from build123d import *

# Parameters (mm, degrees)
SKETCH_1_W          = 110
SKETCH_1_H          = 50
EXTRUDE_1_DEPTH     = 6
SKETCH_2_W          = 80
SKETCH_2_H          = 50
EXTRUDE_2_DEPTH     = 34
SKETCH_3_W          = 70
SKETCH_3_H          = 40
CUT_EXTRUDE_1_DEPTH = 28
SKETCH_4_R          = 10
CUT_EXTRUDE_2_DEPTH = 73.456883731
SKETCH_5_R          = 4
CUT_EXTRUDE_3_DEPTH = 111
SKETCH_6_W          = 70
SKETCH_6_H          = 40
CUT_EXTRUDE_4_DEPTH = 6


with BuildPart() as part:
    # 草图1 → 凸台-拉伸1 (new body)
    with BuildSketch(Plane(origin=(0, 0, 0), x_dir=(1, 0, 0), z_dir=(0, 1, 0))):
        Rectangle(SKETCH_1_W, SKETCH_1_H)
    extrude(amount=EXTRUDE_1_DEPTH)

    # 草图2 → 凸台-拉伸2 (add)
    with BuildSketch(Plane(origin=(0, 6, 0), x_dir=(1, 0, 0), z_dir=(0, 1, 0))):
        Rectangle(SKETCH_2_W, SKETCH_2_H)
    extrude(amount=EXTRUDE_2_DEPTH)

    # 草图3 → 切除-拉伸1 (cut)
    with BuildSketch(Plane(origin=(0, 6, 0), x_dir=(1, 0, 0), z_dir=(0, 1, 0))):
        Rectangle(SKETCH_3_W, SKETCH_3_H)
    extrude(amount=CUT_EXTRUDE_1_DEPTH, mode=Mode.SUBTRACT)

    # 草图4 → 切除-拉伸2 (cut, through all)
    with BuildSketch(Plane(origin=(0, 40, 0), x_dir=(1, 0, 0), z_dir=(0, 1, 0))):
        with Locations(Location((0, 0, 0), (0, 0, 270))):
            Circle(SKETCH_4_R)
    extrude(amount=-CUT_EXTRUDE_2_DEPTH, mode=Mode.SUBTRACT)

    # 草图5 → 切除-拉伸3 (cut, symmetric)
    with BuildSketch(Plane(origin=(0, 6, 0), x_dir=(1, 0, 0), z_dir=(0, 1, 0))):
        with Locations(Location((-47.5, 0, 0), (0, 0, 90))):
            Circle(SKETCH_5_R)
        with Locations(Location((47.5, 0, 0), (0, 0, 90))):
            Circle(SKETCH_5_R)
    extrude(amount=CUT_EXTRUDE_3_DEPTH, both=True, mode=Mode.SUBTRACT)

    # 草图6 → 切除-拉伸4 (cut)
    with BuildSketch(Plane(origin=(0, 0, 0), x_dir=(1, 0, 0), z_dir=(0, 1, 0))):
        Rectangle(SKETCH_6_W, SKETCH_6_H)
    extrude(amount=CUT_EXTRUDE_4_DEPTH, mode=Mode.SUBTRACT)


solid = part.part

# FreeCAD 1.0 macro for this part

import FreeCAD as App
import Part
import Sketcher

doc = App.newDocument("Part")
body = doc.addObject("PartDesign::Body", "Body")

sketch1 = body.newObject("Sketcher::SketchObject", "Sketch")
sketch1.AttachmentSupport = (doc.getObject("XZ_Plane"), [""])
sketch1.MapMode = "FlatFace"
sketch1.addGeometry(Part.LineSegment(App.Vector(-55, -25, 0), App.Vector(-55, 25, 0)), False)
sketch1.addGeometry(Part.LineSegment(App.Vector(-55, 25, 0), App.Vector(55, 25, 0)), False)
sketch1.addGeometry(Part.LineSegment(App.Vector(55, 25, 0), App.Vector(55, -25, 0)), False)
sketch1.addGeometry(Part.LineSegment(App.Vector(55, -25, 0), App.Vector(-55, -25, 0)), False)
sketch1.addConstraint(Sketcher.Constraint("Coincident", 0, 2, 1, 1))
sketch1.addConstraint(Sketcher.Constraint("Coincident", 1, 2, 2, 1))
sketch1.addConstraint(Sketcher.Constraint("Coincident", 2, 2, 3, 1))
sketch1.addConstraint(Sketcher.Constraint("Coincident", 3, 2, 0, 1))
sketch1.addConstraint(Sketcher.Constraint("Vertical", 0))
sketch1.addConstraint(Sketcher.Constraint("Horizontal", 1))
sketch1.addConstraint(Sketcher.Constraint("Vertical", 2))
sketch1.addConstraint(Sketcher.Constraint("Horizontal", 3))
sketch1.addConstraint(Sketcher.Constraint("Symmetric", 0, 2, 2, 2, -1, 1))
sketch1.addConstraint(Sketcher.Constraint("DistanceX", 1, 1, 1, 2, 110.0))
sketch1.addConstraint(Sketcher.Constraint("DistanceY", 0, 1, 0, 2, 50.0))
pad1 = body.newObject("PartDesign::Pad", "Pad")
pad1.Profile = sketch1
pad1.Length = 6
pad1.Reversed = True

sketch2 = body.newObject("Sketcher::SketchObject", "Sketch001")
sketch2.AttachmentSupport = (doc.getObject("XZ_Plane"), [""])
sketch2.MapMode = "FlatFace"
sketch2.AttachmentOffset = App.Placement(App.Vector(0, 0, -6), App.Rotation())
sketch2.addGeometry(Part.LineSegment(App.Vector(-40, -25, 0), App.Vector(-40, 25, 0)), False)
sketch2.addGeometry(Part.LineSegment(App.Vector(-40, 25, 0), App.Vector(40, 25, 0)), False)
sketch2.addGeometry(Part.LineSegment(App.Vector(40, 25, 0), App.Vector(40, -25, 0)), False)
sketch2.addGeometry(Part.LineSegment(App.Vector(40, -25, 0), App.Vector(-40, -25, 0)), False)
sketch2.addConstraint(Sketcher.Constraint("Coincident", 0, 2, 1, 1))
sketch2.addConstraint(Sketcher.Constraint("Coincident", 1, 2, 2, 1))
sketch2.addConstraint(Sketcher.Constraint("Coincident", 2, 2, 3, 1))
sketch2.addConstraint(Sketcher.Constraint("Coincident", 3, 2, 0, 1))
sketch2.addConstraint(Sketcher.Constraint("Vertical", 0))
sketch2.addConstraint(Sketcher.Constraint("Horizontal", 1))
sketch2.addConstraint(Sketcher.Constraint("Vertical", 2))
sketch2.addConstraint(Sketcher.Constraint("Horizontal", 3))
sketch2.addConstraint(Sketcher.Constraint("Symmetric", 0, 2, 2, 2, -1, 1))
sketch2.addConstraint(Sketcher.Constraint("DistanceX", 1, 1, 1, 2, 80.0))
sketch2.addConstraint(Sketcher.Constraint("DistanceY", 0, 1, 0, 2, 50.0))
pad2 = body.newObject("PartDesign::Pad", "Pad001")
pad2.Profile = sketch2
pad2.Length = 34
pad2.Reversed = True

sketch3 = body.newObject("Sketcher::SketchObject", "Sketch002")
sketch3.AttachmentSupport = (doc.getObject("XZ_Plane"), [""])
sketch3.MapMode = "FlatFace"
sketch3.AttachmentOffset = App.Placement(App.Vector(0, 0, -6), App.Rotation())
sketch3.addGeometry(Part.LineSegment(App.Vector(-35, -20, 0), App.Vector(-35, 20, 0)), False)
sketch3.addGeometry(Part.LineSegment(App.Vector(-35, 20, 0), App.Vector(35, 20, 0)), False)
sketch3.addGeometry(Part.LineSegment(App.Vector(35, 20, 0), App.Vector(35, -20, 0)), False)
sketch3.addGeometry(Part.LineSegment(App.Vector(35, -20, 0), App.Vector(-35, -20, 0)), False)
sketch3.addConstraint(Sketcher.Constraint("Coincident", 0, 2, 1, 1))
sketch3.addConstraint(Sketcher.Constraint("Coincident", 1, 2, 2, 1))
sketch3.addConstraint(Sketcher.Constraint("Coincident", 2, 2, 3, 1))
sketch3.addConstraint(Sketcher.Constraint("Coincident", 3, 2, 0, 1))
sketch3.addConstraint(Sketcher.Constraint("Vertical", 0))
sketch3.addConstraint(Sketcher.Constraint("Horizontal", 1))
sketch3.addConstraint(Sketcher.Constraint("Vertical", 2))
sketch3.addConstraint(Sketcher.Constraint("Horizontal", 3))
sketch3.addConstraint(Sketcher.Constraint("Symmetric", 0, 2, 2, 2, -1, 1))
sketch3.addConstraint(Sketcher.Constraint("DistanceX", 1, 1, 1, 2, 70.0))
sketch3.addConstraint(Sketcher.Constraint("DistanceY", 0, 1, 0, 2, 40.0))
pocket1 = body.newObject("PartDesign::Pocket", "Pocket")
pocket1.Profile = sketch3
pocket1.Length = 28

sketch4 = body.newObject("Sketcher::SketchObject", "Sketch003")
sketch4.AttachmentSupport = (doc.getObject("XZ_Plane"), [""])
sketch4.MapMode = "FlatFace"
sketch4.AttachmentOffset = App.Placement(App.Vector(0, 0, -40), App.Rotation())
sketch4.addGeometry(Part.Circle(App.Vector(0, 0, 0), App.Vector(0, 0, 1), 10), False)
sketch4.addConstraint(Sketcher.Constraint("Coincident", 0, 3, -1, 1))
sketch4.addConstraint(Sketcher.Constraint("Diameter", 0, 20.0))
pocket2 = body.newObject("PartDesign::Pocket", "Pocket001")
pocket2.Profile = sketch4
pocket2.Type = "ThroughAll"
pocket2.Reversed = True

sketch5 = body.newObject("Sketcher::SketchObject", "Sketch004")
sketch5.AttachmentSupport = (doc.getObject("XZ_Plane"), [""])
sketch5.MapMode = "FlatFace"
sketch5.AttachmentOffset = App.Placement(App.Vector(0, 0, -6), App.Rotation())
sketch5.addGeometry(Part.Circle(App.Vector(-47.5, 0, 0), App.Vector(0, 0, 1), 4), False)
sketch5.addGeometry(Part.Circle(App.Vector(47.5, 0, 0), App.Vector(0, 0, 1), 4), False)
sketch5.addConstraint(Sketcher.Constraint("Equal", 0, 1))
sketch5.addConstraint(Sketcher.Constraint("Symmetric", 0, 3, 1, 3, -1, 1))
sketch5.addConstraint(Sketcher.Constraint("PointOnObject", 0, 3, -1))
sketch5.addConstraint(Sketcher.Constraint("Diameter", 0, 8.0))
sketch5.addConstraint(Sketcher.Constraint("DistanceX", 0, 3, 1, 3, 95.0))
pocket3 = body.newObject("PartDesign::Pocket", "Pocket002")
pocket3.Profile = sketch5
pocket3.Length = 222
pocket3.Midplane = True

sketch6 = body.newObject("Sketcher::SketchObject", "Sketch005")
sketch6.AttachmentSupport = (doc.getObject("XZ_Plane"), [""])
sketch6.MapMode = "FlatFace"
sketch6.addGeometry(Part.LineSegment(App.Vector(-35, -20, 0), App.Vector(-35, 20, 0)), False)
sketch6.addGeometry(Part.LineSegment(App.Vector(-35, 20, 0), App.Vector(35, 20, 0)), False)
sketch6.addGeometry(Part.LineSegment(App.Vector(35, 20, 0), App.Vector(35, -20, 0)), False)
sketch6.addGeometry(Part.LineSegment(App.Vector(35, -20, 0), App.Vector(-35, -20, 0)), False)
sketch6.addConstraint(Sketcher.Constraint("Coincident", 0, 2, 1, 1))
sketch6.addConstraint(Sketcher.Constraint("Coincident", 1, 2, 2, 1))
sketch6.addConstraint(Sketcher.Constraint("Coincident", 2, 2, 3, 1))
sketch6.addConstraint(Sketcher.Constraint("Coincident", 3, 2, 0, 1))
sketch6.addConstraint(Sketcher.Constraint("Vertical", 0))
sketch6.addConstraint(Sketcher.Constraint("Horizontal", 1))
sketch6.addConstraint(Sketcher.Constraint("Vertical", 2))
sketch6.addConstraint(Sketcher.Constraint("Horizontal", 3))
sketch6.addConstraint(Sketcher.Constraint("Symmetric", 0, 2, 2, 2, -1, 1))
sketch6.addConstraint(Sketcher.Constraint("DistanceX", 1, 1, 1, 2, 70.0))
sketch6.addConstraint(Sketcher.Constraint("DistanceY", 0, 1, 0, 2, 40.0))
pocket4 = body.newObject("PartDesign::Pocket", "Pocket003")
pocket4.Profile = sketch6
pocket4.Length = 6

doc.recompute()
